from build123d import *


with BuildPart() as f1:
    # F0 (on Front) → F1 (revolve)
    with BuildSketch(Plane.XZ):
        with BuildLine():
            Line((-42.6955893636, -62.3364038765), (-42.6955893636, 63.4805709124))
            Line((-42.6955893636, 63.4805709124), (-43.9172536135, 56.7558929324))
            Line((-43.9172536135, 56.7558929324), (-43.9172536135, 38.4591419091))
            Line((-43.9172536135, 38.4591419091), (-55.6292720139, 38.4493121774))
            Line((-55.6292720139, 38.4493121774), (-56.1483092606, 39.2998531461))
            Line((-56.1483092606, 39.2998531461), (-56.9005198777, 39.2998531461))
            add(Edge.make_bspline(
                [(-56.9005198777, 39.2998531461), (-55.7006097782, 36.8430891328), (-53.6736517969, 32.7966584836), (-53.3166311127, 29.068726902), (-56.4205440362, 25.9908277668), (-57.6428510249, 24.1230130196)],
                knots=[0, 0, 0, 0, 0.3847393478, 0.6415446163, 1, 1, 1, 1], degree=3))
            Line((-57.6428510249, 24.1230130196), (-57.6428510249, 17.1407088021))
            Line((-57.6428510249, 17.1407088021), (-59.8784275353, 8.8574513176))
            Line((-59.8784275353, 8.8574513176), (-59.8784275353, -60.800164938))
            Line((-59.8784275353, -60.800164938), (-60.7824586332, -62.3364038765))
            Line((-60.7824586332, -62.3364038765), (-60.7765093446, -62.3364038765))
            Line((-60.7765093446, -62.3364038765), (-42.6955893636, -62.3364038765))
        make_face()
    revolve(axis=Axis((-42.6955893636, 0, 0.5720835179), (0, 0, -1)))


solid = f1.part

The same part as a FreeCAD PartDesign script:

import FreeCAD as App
import Part
import Sketcher
from FreeCAD import Vector

doc = App.newDocument("Part")
body = doc.addObject("PartDesign::Body", "Body")

sketch1 = body.newObject("Sketcher::SketchObject", "Sketch")
sketch1.AttachmentSupport = (doc.getObject("XZ_Plane"), [""])
sketch1.MapMode = "FlatFace"
sketch1.addGeometry([
    Part.LineSegment(Vector(-42.695589, -62.336404, 0), Vector(-42.695589, 63.480571, 0)),
    Part.LineSegment(Vector(-42.695589, 63.480571, 0), Vector(-43.917254, 56.755893, 0)),
    Part.LineSegment(Vector(-43.917254, 56.755893, 0), Vector(-43.917254, 38.459142, 0)),
    Part.LineSegment(Vector(-43.917254, 38.459142, 0), Vector(-55.629272, 38.449312, 0)),
    Part.LineSegment(Vector(-55.629272, 38.449312, 0), Vector(-56.148309, 39.299853, 0)),
    Part.LineSegment(Vector(-56.148309, 39.299853, 0), Vector(-56.90052, 39.299853, 0)),
    Part.BSplineCurve([Vector(-56.90052, 39.299853, 0), Vector(-55.70061, 36.843089, 0), Vector(-53.673652, 32.796658, 0), Vector(-53.316631, 29.068727, 0), Vector(-56.420544, 25.990828, 0), Vector(-57.642851, 24.123013, 0)], [4, 1, 1, 4], [0, 0.384739348, 0.641544616, 1], False, 3, [1, 1, 1, 1, 1, 1], False),
    Part.LineSegment(Vector(-57.642851, 24.123013, 0), Vector(-57.642851, 17.140709, 0)),
    Part.LineSegment(Vector(-57.642851, 17.140709, 0), Vector(-59.878428, 8.857451, 0)),
    Part.LineSegment(Vector(-59.878428, 8.857451, 0), Vector(-59.878428, -60.800165, 0)),
    Part.LineSegment(Vector(-59.878428, -60.800165, 0), Vector(-60.782459, -62.336404, 0)),
    Part.LineSegment(Vector(-60.782459, -62.336404, 0), Vector(-42.695589, -62.336404, 0)),
], False)
sketch1.addGeometry(Part.LineSegment(Vector(-42.695589, 63.480571, 0), Vector(-42.695589, -62.336404, 0)), True)
sketch1.addConstraint([
    Sketcher.Constraint("Block", 6),
    Sketcher.Constraint("Coincident", 0, 2, 1, 1),
    Sketcher.Constraint("Coincident", 1, 2, 2, 1),
    Sketcher.Constraint("Coincident", 2, 2, 3, 1),
    Sketcher.Constraint("Coincident", 3, 2, 4, 1),
    Sketcher.Constraint("Coincident", 4, 2, 5, 1),
    Sketcher.Constraint("Coincident", 5, 2, 6, 1),
    Sketcher.Constraint("Coincident", 6, 2, 7, 1),
    Sketcher.Constraint("Coincident", 7, 2, 8, 1),
    Sketcher.Constraint("Coincident", 8, 2, 9, 1),
    Sketcher.Constraint("Coincident", 9, 2, 10, 1),
    Sketcher.Constraint("Coincident", 10, 2, 11, 1),
    Sketcher.Constraint("Coincident", 11, 2, 0, 1),
    Sketcher.Constraint("Vertical", 0),
    Sketcher.Constraint("Vertical", 2),
    Sketcher.Constraint("Horizontal", 5),
    Sketcher.Constraint("Vertical", 7),
    Sketcher.Constraint("Vertical", 9),
    Sketcher.Constraint("Horizontal", 11),
    Sketcher.Constraint("Vertical", 12),
    Sketcher.Constraint("Coincident", 12, 1, 0, 2),
    Sketcher.Constraint("Horizontal", 10, 2, 12, 2),
    Sketcher.Constraint("Distance", 10, 1.782499),
    Sketcher.Constraint("DistanceX", 5, 2, 5, 1, 0.752211),
    Sketcher.Constraint("DistanceX", 11, 1, 11, 2, 18.086869),
    Sketcher.Constraint("DistanceY", 2, 2, 2, 1, 18.296751),
    Sketcher.Constraint("DistanceY", 8, 2, 5, 2, 30.442402),
    Sketcher.Constraint("DistanceY", 0, 1, 0, 2, 125.816975),
    Sketcher.Constraint("DistanceY", 7, 2, 7, 1, 6.982304),
    Sketcher.Constraint("DistanceY", 9, 2, 9, 1, 69.657616),
    Sketcher.Constraint("DistanceX", 0, 2, -1, 1, 42.695589),
    Sketcher.Constraint("DistanceY", -1, 1, 0, 2, 63.480571),
    Sketcher.Constraint("DistanceY", -1, 1, 2, 2, 38.459142),
    Sketcher.Constraint("DistanceX", 3, 2, 2, 2, 11.712018),
    Sketcher.Constraint("DistanceY", 3, 2, 2, 2, 0.00983),
    Sketcher.Constraint("DistanceX", 7, 2, 3, 2, 2.013579),
])
revolution = body.newObject("PartDesign::Revolution", "Revolution")
revolution.Profile = sketch1
revolution.ReferenceAxis = (sketch1, ["Axis0"])
revolution.Angle = 360

doc.recompute()
